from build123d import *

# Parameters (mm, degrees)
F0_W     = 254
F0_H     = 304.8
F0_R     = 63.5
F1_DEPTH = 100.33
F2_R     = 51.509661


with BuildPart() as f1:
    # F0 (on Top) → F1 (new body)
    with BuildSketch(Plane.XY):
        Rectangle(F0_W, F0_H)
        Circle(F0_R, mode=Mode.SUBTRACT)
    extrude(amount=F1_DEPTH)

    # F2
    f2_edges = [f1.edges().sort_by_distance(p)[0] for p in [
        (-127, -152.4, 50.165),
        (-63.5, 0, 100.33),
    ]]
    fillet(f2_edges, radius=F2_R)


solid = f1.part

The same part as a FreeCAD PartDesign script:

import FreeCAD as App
import Part
import Sketcher
from FreeCAD import Vector
Q = App.Units.Quantity


def edges_at(feature, points):
    """Names of the edges that pass closest to the given points."""
    edges = feature.Shape.Edges
    near = lambda p: min(range(len(edges)), key=lambda i: edges[i].distToShape(Part.Vertex(*p))[0])
    return sorted({f"Edge{near(p) + 1}" for p in points})


def add_polygon(sketch, points):
    """Adds a closed chain of lines whose ends are joined by coincident constraints."""
    first, n = sketch.GeometryCount, len(points)
    for a, b in zip(points, points[1:] + points[:1]):
        sketch.addGeometry(Part.LineSegment(App.Vector(*a, 0), App.Vector(*b, 0)), False)
    for i in range(n):
        sketch.addConstraint(Sketcher.Constraint("Coincident", first + i, 2, first + (i + 1) % n, 1))

doc = App.newDocument("Part")
body = doc.addObject("PartDesign::Body", "Body")

# Sketch on XY plane
sketch1 = doc.addObject("Sketcher::SketchObject", "Sketch")
body.addObject(sketch1)
sketch1.AttachmentSupport = (doc.XY_Plane, [""])
sketch1.MapMode = "FlatFace"
add_polygon(sketch1, [(-127, 152), (-127, -152), (127, -152), (127, 152)])  # lines 0-3
sketch1.addGeometry(Part.Circle(Vector(0, 0, 0), Vector(0, 0, 1), 64), False)  # 4
sketch1.addConstraint([
    Sketcher.Constraint("Vertical", 0),
    Sketcher.Constraint("Horizontal", 1),
    Sketcher.Constraint("Vertical", 2),
    Sketcher.Constraint("Horizontal", 3),
    Sketcher.Constraint("Coincident", 4, 3, -1, 1),
    Sketcher.Constraint("Symmetric", 0, 2, 2, 2, -1, 1),
    Sketcher.Constraint("Diameter", 4, Q("5 in")),
    Sketcher.Constraint("DistanceX", 1, 1, 1, 2, Q("10 in")),
    Sketcher.Constraint("DistanceY", 0, 2, 0, 1, Q("12 in")),
])
pad1 = doc.addObject("PartDesign::Pad", "Pad")
body.addObject(pad1)
pad1.Profile = sketch1
pad1.Length = Q("3.95 in")
doc.recompute()

fillet = doc.addObject("PartDesign::Fillet", "Fillet")
body.addObject(fillet)
fillet.Base = (pad1, edges_at(pad1, [(-127, -152.4, 50.165), (-63.5, 0, 100.33)]))
fillet.Radius = 51.509661

doc.recompute()
